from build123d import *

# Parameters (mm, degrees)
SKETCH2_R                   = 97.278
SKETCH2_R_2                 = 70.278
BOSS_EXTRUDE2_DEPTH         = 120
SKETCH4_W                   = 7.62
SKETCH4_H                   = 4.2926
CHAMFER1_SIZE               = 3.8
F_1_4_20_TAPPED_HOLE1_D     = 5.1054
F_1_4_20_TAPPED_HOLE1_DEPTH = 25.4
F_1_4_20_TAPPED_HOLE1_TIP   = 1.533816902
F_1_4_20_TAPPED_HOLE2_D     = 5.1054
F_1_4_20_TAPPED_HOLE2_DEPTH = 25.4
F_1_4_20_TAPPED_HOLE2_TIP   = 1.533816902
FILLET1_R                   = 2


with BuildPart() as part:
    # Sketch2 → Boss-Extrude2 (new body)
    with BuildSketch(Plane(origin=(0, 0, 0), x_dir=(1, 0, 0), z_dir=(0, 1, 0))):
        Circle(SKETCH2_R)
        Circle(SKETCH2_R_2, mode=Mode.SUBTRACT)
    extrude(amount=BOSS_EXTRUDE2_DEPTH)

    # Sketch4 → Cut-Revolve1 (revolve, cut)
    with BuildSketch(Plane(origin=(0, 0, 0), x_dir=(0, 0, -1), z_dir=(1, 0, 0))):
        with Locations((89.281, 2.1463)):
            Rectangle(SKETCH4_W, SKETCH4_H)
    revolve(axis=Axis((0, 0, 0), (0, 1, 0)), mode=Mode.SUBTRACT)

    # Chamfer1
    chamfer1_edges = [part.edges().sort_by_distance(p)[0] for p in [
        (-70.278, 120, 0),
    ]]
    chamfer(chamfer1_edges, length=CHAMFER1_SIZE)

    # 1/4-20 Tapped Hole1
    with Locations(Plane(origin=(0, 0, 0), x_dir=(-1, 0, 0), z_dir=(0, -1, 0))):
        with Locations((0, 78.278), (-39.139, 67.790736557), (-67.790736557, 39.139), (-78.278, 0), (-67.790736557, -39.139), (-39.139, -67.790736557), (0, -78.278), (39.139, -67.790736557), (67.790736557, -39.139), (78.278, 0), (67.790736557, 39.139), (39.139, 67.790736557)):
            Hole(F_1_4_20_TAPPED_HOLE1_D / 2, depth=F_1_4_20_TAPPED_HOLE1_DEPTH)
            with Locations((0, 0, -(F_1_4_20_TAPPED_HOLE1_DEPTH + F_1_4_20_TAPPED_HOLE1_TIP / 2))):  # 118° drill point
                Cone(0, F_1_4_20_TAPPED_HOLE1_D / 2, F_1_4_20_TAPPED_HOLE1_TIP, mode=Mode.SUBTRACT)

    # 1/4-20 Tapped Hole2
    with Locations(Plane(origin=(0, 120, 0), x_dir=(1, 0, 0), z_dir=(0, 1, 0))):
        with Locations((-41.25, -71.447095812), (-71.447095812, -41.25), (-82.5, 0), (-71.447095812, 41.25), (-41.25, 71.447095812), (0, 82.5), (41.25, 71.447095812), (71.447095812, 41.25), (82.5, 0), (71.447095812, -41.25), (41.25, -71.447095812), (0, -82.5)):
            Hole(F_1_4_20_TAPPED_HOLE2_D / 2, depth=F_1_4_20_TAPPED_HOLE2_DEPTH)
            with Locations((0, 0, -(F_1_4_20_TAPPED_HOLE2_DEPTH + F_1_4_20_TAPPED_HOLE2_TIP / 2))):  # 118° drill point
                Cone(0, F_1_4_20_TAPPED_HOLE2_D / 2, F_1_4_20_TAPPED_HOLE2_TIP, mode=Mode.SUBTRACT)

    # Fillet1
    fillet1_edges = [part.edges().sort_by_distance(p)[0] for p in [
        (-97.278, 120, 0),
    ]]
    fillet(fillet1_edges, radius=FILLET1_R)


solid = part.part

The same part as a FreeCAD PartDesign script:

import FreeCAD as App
import Part
import Sketcher
from FreeCAD import Vector
Q = App.Units.Quantity


def edges_at(feature, points):
    """Names of the edges that pass closest to the given points."""
    edges = feature.Shape.Edges
    near = lambda p: min(range(len(edges)), key=lambda i: edges[i].distToShape(Part.Vertex(*p))[0])
    return sorted({f"Edge{near(p) + 1}" for p in points})

doc = App.newDocument("Part")
body = doc.addObject("PartDesign::Body", "Body")

sketch1 = body.newObject("Sketcher::SketchObject", "Sketch")
sketch1.AttachmentSupport = (doc.getObject("XZ_Plane"), [""])
sketch1.MapMode = "FlatFace"
sketch1.addGeometry([
    Part.Circle(Vector(0, 0, 0), Vector(0, 0, 1), 97.278),
    Part.Circle(Vector(0, 0, 0), Vector(0, 0, 1), 70.278),
], False)
sketch1.addConstraint([
    Sketcher.Constraint("Coincident", 0, 3, -1, 1),
    Sketcher.Constraint("Coincident", 1, 3, -1, 1),
    Sketcher.Constraint("Diameter", 0, 194.556),
    Sketcher.Constraint("Diameter", 1, 140.556),
])
pad1 = body.newObject("PartDesign::Pad", "Pad")
pad1.Profile = sketch1
pad1.Length = 120
pad1.Reversed = True

sketch2 = body.newObject("Sketcher::SketchObject", "Sketch001")
sketch2.AttachmentSupport = (doc.getObject("YZ_Plane"), [""])
sketch2.MapMode = "FlatFace"
sketch2.addGeometry([
    Part.LineSegment(Vector(4.2926, -85.471, 0), Vector(0, -85.471, 0)),
    Part.LineSegment(Vector(0, -85.471, 0), Vector(0, -93.091, 0)),
    Part.LineSegment(Vector(0, -93.091, 0), Vector(4.2926, -93.091, 0)),
    Part.LineSegment(Vector(4.2926, -93.091, 0), Vector(4.2926, -85.471, 0)),
], False)
sketch2.addConstraint([
    Sketcher.Constraint("Coincident", 0, 2, 1, 1),
    Sketcher.Constraint("Coincident", 1, 2, 2, 1),
    Sketcher.Constraint("Coincident", 2, 2, 3, 1),
    Sketcher.Constraint("Coincident", 3, 2, 0, 1),
    Sketcher.Constraint("Horizontal", 0),
    Sketcher.Constraint("Vertical", 1),
    Sketcher.Constraint("Horizontal", 2),
    Sketcher.Constraint("Vertical", 3),
    Sketcher.Constraint("PointOnObject", 0, 2, -2),
    Sketcher.Constraint("DistanceY", 1, 2, 1, 1, Q("0.3 in")),
    Sketcher.Constraint("DistanceX", 0, 2, 0, 1, Q("0.169 in")),
    Sketcher.Constraint("DistanceY", 0, 2, -1, 1, Q("3.365 in")),
])
groove = body.newObject("PartDesign::Groove", "Groove")
groove.Profile = sketch2
groove.ReferenceAxis = (sketch2, ["H_Axis"])
groove.Angle = 360
doc.recompute()

chamfer = body.newObject("PartDesign::Chamfer", "Chamfer")
chamfer.Base = (groove, edges_at(groove, [(-70.278, 120, 0)]))
chamfer.Size = 3.8

sketch3 = body.newObject("Sketcher::SketchObject", "Sketch002")
sketch3.AttachmentSupport = (doc.getObject("XZ_Plane"), [""])
sketch3.MapMode = "FlatFace"
sketch3.addGeometry([
    Part.Circle(Vector(0, -78.278, 0), Vector(0, 0, 1), 2.5527),
    Part.Circle(Vector(39.139, -67.790737, 0), Vector(0, 0, 1), 2.5527),
    Part.Circle(Vector(67.790737, -39.139, 0), Vector(0, 0, 1), 2.5527),
    Part.Circle(Vector(78.278, 0, 0), Vector(0, 0, 1), 2.5527),
    Part.Circle(Vector(67.790737, 39.139, 0), Vector(0, 0, 1), 2.5527),
    Part.Circle(Vector(39.139, 67.790737, 0), Vector(0, 0, 1), 2.5527),
    Part.Circle(Vector(0, 78.278, 0), Vector(0, 0, 1), 2.5527),
    Part.Circle(Vector(-39.139, 67.790737, 0), Vector(0, 0, 1), 2.5527),
    Part.Circle(Vector(-67.790737, 39.139, 0), Vector(0, 0, 1), 2.5527),
    Part.Circle(Vector(-78.278, 0, 0), Vector(0, 0, 1), 2.5527),
    Part.Circle(Vector(-67.790737, -39.139, 0), Vector(0, 0, 1), 2.5527),
    Part.Circle(Vector(-39.139, -67.790737, 0), Vector(0, 0, 1), 2.5527),
], False)
sketch3.addConstraint([
    Sketcher.Constraint("Equal", 0, 1),
    Sketcher.Constraint("Equal", 1, 2),
    Sketcher.Constraint("Equal", 2, 3),
    Sketcher.Constraint("Equal", 3, 4),
    Sketcher.Constraint("Equal", 4, 5),
    Sketcher.Constraint("Equal", 5, 6),
    Sketcher.Constraint("Equal", 6, 7),
    Sketcher.Constraint("Equal", 7, 8),
    Sketcher.Constraint("Equal", 8, 9),
    Sketcher.Constraint("Equal", 9, 10),
    Sketcher.Constraint("Equal", 10, 11),
    Sketcher.Constraint("Symmetric", 0, 3, 6, 3, -1, 1),
    Sketcher.Constraint("Symmetric", 1, 3, 7, 3, -1, 1),
    Sketcher.Constraint("Symmetric", 2, 3, 8, 3, -1, 1),
    Sketcher.Constraint("Symmetric", 3, 3, 9, 3, -1, 1),
    Sketcher.Constraint("Symmetric", 4, 3, 10, 3, -1, 1),
    Sketcher.Constraint("Symmetric", 5, 3, 11, 3, -1, 1),
    Sketcher.Constraint("Symmetric", 5, 3, 7, 3, -2),
    Sketcher.Constraint("Symmetric", 4, 3, 8, 3, -2),
    Sketcher.Constraint("PointOnObject", 0, 3, -2),
    Sketcher.Constraint("PointOnObject", 3, 3, -1),
    Sketcher.Constraint("Diameter", 0, Q("0.201 in")),
    Sketcher.Constraint("DistanceY", 0, 3, -1, 1, 78.278),
    Sketcher.Constraint("DistanceX", -1, 1, 1, 3, 39.139),
    Sketcher.Constraint("DistanceY", 2, 3, -1, 1, 39.139),
    Sketcher.Constraint("DistanceX", -1, 1, 3, 3, 78.278),
    Sketcher.Constraint("DistanceY", 1, 3, -1, 1, 67.790737),
    Sketcher.Constraint("DistanceX", -1, 1, 2, 3, 67.790737),
])
doc.recompute()
hole = body.newObject("PartDesign::Hole", "Hole")
hole.Profile = sketch3
hole.ThreadType = "None"
hole.Diameter = Q("0.201 in")
hole.DepthType = "Dimension"
hole.Depth = Q("1 in")
hole.DrillPoint = "Angled"
hole.DrillPointAngle = 118

sketch4 = body.newObject("Sketcher::SketchObject", "Sketch003")
sketch4.AttachmentSupport = (doc.getObject("XZ_Plane"), [""])
sketch4.MapMode = "FlatFace"
sketch4.AttachmentOffset = App.Placement(Vector(0, 0, -120), App.Rotation())
sketch4.addGeometry([
    Part.Circle(Vector(-41.25, 71.447096, 0), Vector(0, 0, 1), 2.5527),
    Part.Circle(Vector(-71.447096, 41.25, 0), Vector(0, 0, 1), 2.5527),
    Part.Circle(Vector(-82.5, 0, 0), Vector(0, 0, 1), 2.5527),
    Part.Circle(Vector(-71.447096, -41.25, 0), Vector(0, 0, 1), 2.5527),
    Part.Circle(Vector(-41.25, -71.447096, 0), Vector(0, 0, 1), 2.5527),
    Part.Circle(Vector(0, -82.5, 0), Vector(0, 0, 1), 2.5527),
    Part.Circle(Vector(41.25, -71.447096, 0), Vector(0, 0, 1), 2.5527),
    Part.Circle(Vector(71.447096, -41.25, 0), Vector(0, 0, 1), 2.5527),
    Part.Circle(Vector(82.5, 0, 0), Vector(0, 0, 1), 2.5527),
    Part.Circle(Vector(71.447096, 41.25, 0), Vector(0, 0, 1), 2.5527),
    Part.Circle(Vector(41.25, 71.447096, 0), Vector(0, 0, 1), 2.5527),
    Part.Circle(Vector(0, 82.5, 0), Vector(0, 0, 1), 2.5527),
], False)
sketch4.addConstraint([
    Sketcher.Constraint("Equal", 0, 1),
    Sketcher.Constraint("Equal", 1, 2),
    Sketcher.Constraint("Equal", 2, 3),
    Sketcher.Constraint("Equal", 3, 4),
    Sketcher.Constraint("Equal", 4, 5),
    Sketcher.Constraint("Equal", 5, 6),
    Sketcher.Constraint("Equal", 6, 7),
    Sketcher.Constraint("Equal", 7, 8),
    Sketcher.Constraint("Equal", 8, 9),
    Sketcher.Constraint("Equal", 9, 10),
    Sketcher.Constraint("Equal", 10, 11),
    Sketcher.Constraint("Symmetric", 0, 3, 6, 3, -1, 1),
    Sketcher.Constraint("Symmetric", 1, 3, 7, 3, -1, 1),
    Sketcher.Constraint("Symmetric", 2, 3, 8, 3, -1, 1),
    Sketcher.Constraint("Symmetric", 3, 3, 9, 3, -1, 1),
    Sketcher.Constraint("Symmetric", 4, 3, 10, 3, -1, 1),
    Sketcher.Constraint("Symmetric", 5, 3, 11, 3, -1, 1),
    Sketcher.Constraint("Symmetric", 4, 3, 6, 3, -2),
    Sketcher.Constraint("Symmetric", 3, 3, 7, 3, -2),
    Sketcher.Constraint("PointOnObject", 2, 3, -1),
    Sketcher.Constraint("PointOnObject", 5, 3, -2),
    Sketcher.Constraint("Diameter", 0, Q("0.201 in")),
    Sketcher.Constraint("DistanceX", 0, 3, -1, 1, 41.25),
    Sketcher.Constraint("DistanceY", -1, 1, 1, 3, 41.25),
    Sketcher.Constraint("DistanceX", 2, 3, -1, 1, 82.5),
    Sketcher.Constraint("DistanceY", 5, 3, -1, 1, 82.5),
    Sketcher.Constraint("DistanceY", 4, 3, 0, 3, 142.894192),
    Sketcher.Constraint("DistanceX", 3, 3, 7, 3, 142.894192),
])
doc.recompute()
hole2 = body.newObject("PartDesign::Hole", "Hole001")
hole2.Profile = sketch4
hole2.ThreadType = "None"
hole2.Diameter = Q("0.201 in")
hole2.DepthType = "Dimension"
hole2.Depth = Q("1 in")
hole2.DrillPoint = "Angled"
hole2.DrillPointAngle = 118
hole2.Reversed = True
doc.recompute()

fillet = body.newObject("PartDesign::Fillet", "Fillet")
fillet.Base = (hole2, edges_at(hole2, [(-97.278, 120, 0)]))
fillet.Radius = 2

doc.recompute()
